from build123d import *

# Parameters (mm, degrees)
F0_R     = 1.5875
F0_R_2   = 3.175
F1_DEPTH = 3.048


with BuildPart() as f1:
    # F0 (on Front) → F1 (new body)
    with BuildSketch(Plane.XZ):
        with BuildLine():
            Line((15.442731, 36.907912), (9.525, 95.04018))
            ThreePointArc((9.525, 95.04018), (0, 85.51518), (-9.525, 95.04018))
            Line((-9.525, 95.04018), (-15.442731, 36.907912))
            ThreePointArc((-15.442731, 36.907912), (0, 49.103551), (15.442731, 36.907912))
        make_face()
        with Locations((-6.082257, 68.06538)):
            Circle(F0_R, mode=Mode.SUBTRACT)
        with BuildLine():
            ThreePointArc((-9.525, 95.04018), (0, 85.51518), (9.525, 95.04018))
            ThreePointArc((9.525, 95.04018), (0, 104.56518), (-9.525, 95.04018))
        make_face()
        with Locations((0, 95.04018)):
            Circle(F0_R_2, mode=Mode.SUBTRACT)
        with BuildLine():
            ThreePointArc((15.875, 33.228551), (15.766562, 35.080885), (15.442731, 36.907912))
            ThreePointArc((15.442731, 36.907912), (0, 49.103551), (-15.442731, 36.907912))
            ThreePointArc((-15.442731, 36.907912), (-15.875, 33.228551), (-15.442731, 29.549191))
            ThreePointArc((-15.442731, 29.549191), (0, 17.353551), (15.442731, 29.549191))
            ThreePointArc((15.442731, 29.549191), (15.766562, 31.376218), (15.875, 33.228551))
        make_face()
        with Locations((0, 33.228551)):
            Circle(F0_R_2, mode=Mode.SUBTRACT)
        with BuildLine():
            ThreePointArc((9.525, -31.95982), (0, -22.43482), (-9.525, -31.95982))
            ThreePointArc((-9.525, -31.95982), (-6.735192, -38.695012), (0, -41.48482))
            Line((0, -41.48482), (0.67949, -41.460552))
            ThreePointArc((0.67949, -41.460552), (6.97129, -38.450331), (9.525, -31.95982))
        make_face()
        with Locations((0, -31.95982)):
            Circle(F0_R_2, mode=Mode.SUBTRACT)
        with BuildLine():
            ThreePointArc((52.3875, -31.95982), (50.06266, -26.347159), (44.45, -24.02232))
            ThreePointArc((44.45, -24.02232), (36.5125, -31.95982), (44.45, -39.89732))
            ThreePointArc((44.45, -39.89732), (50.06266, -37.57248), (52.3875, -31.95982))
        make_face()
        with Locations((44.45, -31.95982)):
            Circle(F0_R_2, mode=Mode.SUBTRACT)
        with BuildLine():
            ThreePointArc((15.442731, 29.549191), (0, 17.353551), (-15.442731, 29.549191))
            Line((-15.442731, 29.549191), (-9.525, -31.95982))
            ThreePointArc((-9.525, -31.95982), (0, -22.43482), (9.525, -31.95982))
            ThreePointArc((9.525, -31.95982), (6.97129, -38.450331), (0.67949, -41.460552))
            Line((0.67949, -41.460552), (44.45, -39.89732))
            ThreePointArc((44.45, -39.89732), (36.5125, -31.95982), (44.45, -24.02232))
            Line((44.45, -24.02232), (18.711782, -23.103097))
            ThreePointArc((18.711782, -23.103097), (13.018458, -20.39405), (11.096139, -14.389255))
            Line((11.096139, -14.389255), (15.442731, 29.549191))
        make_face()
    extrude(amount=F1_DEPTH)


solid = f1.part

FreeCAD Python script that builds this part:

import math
import FreeCAD as App
import Part
import Sketcher
Q = App.Units.Quantity

doc = App.newDocument("Part")
body = doc.addObject("PartDesign::Body", "Body")

# Sketch on XZ plane
sketch1 = body.newObject("Sketcher::SketchObject", "Sketch")
sketch1.AttachmentSupport = (doc.getObject("XZ_Plane"), [""])
sketch1.MapMode = "FlatFace"
sketch1.addGeometry(Part.LineSegment(App.Vector(15.442731, 36.907912, 0), App.Vector(9.525, 95.04018, 0)), False)
sketch1.addGeometry(Part.ArcOfCircle(Part.Circle(App.Vector(0, 95.04018, 0), App.Vector(0, 0, 1), 9.525), math.radians(0), math.radians(180)), False)
sketch1.addGeometry(Part.LineSegment(App.Vector(-9.525, 95.04018, 0), App.Vector(-15.442731, 36.907912, 0)), False)
sketch1.addGeometry(Part.ArcOfCircle(Part.Circle(App.Vector(0.000011, 33.228552, 0), App.Vector(0, 0, 1), 15.875011), math.radians(166.598664), math.radians(193.401336)), False)
sketch1.addGeometry(Part.LineSegment(App.Vector(-15.442731, 29.549191, 0), App.Vector(-9.525, -31.95982, 0)), False)
sketch1.addGeometry(Part.ArcOfCircle(Part.Circle(App.Vector(0, -31.95982, 0), App.Vector(0, 0, 1), 9.525), math.radians(-179.999998), math.radians(-90.000002)), False)
sketch1.addGeometry(Part.LineSegment(App.Vector(0, -41.48482, 0), App.Vector(0.67949, -41.460552, 0)), False)
sketch1.addGeometry(Part.LineSegment(App.Vector(0.67949, -41.460552, 0), App.Vector(44.45, -39.89732, 0)), False)
sketch1.addGeometry(Part.ArcOfCircle(Part.Circle(App.Vector(44.45, -31.95982, 0), App.Vector(0, 0, 1), 7.9375), math.radians(-89.999998), math.radians(-0.000002)), False)
sketch1.addGeometry(Part.ArcOfCircle(Part.Circle(App.Vector(44.450001, -31.959819, 0), App.Vector(0, 0, 1), 7.937499), math.radians(-0.00001), math.radians(90.00001)), False)
sketch1.addGeometry(Part.LineSegment(App.Vector(44.45, -24.02232, 0), App.Vector(18.711782, -23.103097, 0)), False)
sketch1.addGeometry(Part.ArcOfCircle(Part.Circle(App.Vector(18.995082, -15.170655, 0), App.Vector(0, 0, 1), 7.937499), math.radians(174.350417), math.radians(267.9546)), False)
sketch1.addGeometry(Part.LineSegment(App.Vector(11.096139, -14.389255, 0), App.Vector(15.442731, 29.549191, 0)), False)
sketch1.addGeometry(Part.ArcOfCircle(Part.Circle(App.Vector(-0.00006, 33.228557, 0), App.Vector(0, 0, 1), 15.87506), math.radians(-13.401315), math.radians(-0.000023)), False)
sketch1.addGeometry(Part.ArcOfCircle(Part.Circle(App.Vector(-0.00006, 33.228546, 0), App.Vector(0, 0, 1), 15.87506), math.radians(0.000019), math.radians(13.401315)), False)
sketch1.addGeometry(Part.Circle(App.Vector(0, 33.228551, 0), App.Vector(0, 0, 1), 3.175), False)
sketch1.addGeometry(Part.Circle(App.Vector(-6.082257, 68.06538, 0), App.Vector(0, 0, 1), 1.5875), False)
sketch1.addGeometry(Part.Circle(App.Vector(0, 95.04018, 0), App.Vector(0, 0, 1), 3.175), False)
sketch1.addGeometry(Part.Circle(App.Vector(0, -31.95982, 0), App.Vector(0, 0, 1), 3.175), False)
sketch1.addGeometry(Part.Circle(App.Vector(44.45, -31.95982, 0), App.Vector(0, 0, 1), 3.175), False)
sketch1.addConstraint(Sketcher.Constraint("Coincident", 0, 2, 1, 1))
sketch1.addConstraint(Sketcher.Constraint("Coincident", 1, 2, 2, 1))
sketch1.addConstraint(Sketcher.Constraint("Coincident", 2, 2, 3, 1))
sketch1.addConstraint(Sketcher.Constraint("Coincident", 3, 2, 4, 1))
sketch1.addConstraint(Sketcher.Constraint("Coincident", 4, 2, 5, 1))
sketch1.addConstraint(Sketcher.Constraint("Coincident", 5, 2, 6, 1))
sketch1.addConstraint(Sketcher.Constraint("Coincident", 6, 2, 7, 1))
sketch1.addConstraint(Sketcher.Constraint("Coincident", 7, 2, 8, 1))
sketch1.addConstraint(Sketcher.Constraint("Coincident", 8, 2, 9, 1))
sketch1.addConstraint(Sketcher.Constraint("Coincident", 9, 2, 10, 1))
sketch1.addConstraint(Sketcher.Constraint("Coincident", 10, 2, 11, 2))
sketch1.addConstraint(Sketcher.Constraint("Coincident", 11, 1, 12, 1))
sketch1.addConstraint(Sketcher.Constraint("Coincident", 12, 2, 13, 1))
sketch1.addConstraint(Sketcher.Constraint("Coincident", 13, 2, 14, 1))
sketch1.addConstraint(Sketcher.Constraint("Coincident", 14, 2, 0, 1))
sketch1.addConstraint(Sketcher.Constraint("Coincident", 9, 3, 8, 3))
sketch1.addConstraint(Sketcher.Constraint("Coincident", 17, 3, 1, 3))
sketch1.addConstraint(Sketcher.Constraint("Coincident", 18, 3, 5, 3))
sketch1.addConstraint(Sketcher.Constraint("Coincident", 19, 3, 8, 3))
sketch1.addConstraint(Sketcher.Constraint("PointOnObject", 1, 3, -2))
sketch1.addConstraint(Sketcher.Constraint("PointOnObject", 5, 3, -2))
sketch1.addConstraint(Sketcher.Constraint("PointOnObject", 15, 3, -2))
sketch1.addConstraint(Sketcher.Constraint("PointOnObject", 5, 2, -2))
sketch1.addConstraint(Sketcher.Constraint("Diameter", 15, Q("0.25 in")))
sketch1.addConstraint(Sketcher.Constraint("Diameter", 17, Q("0.25 in")))
sketch1.addConstraint(Sketcher.Constraint("Diameter", 18, Q("0.25 in")))
sketch1.addConstraint(Sketcher.Constraint("Diameter", 19, Q("0.25 in")))
sketch1.addConstraint(Sketcher.Constraint("Diameter", 16, Q("0.125 in")))
sketch1.addConstraint(Sketcher.Constraint("Radius", 1, Q("0.375 in")))
sketch1.addConstraint(Sketcher.Constraint("Radius", 5, Q("0.375 in")))
sketch1.addConstraint(Sketcher.Constraint("Radius", 8, Q("0.3125 in")))
sketch1.addConstraint(Sketcher.Constraint("Radius", 11, Q("0.3125 in")))
sketch1.addConstraint(Sketcher.Constraint("DistanceY", 5, 3, 1, 3, Q("5 in")))
sketch1.addConstraint(Sketcher.Constraint("DistanceY", 8, 3, 1, 3, Q("5 in")))
sketch1.addConstraint(Sketcher.Constraint("DistanceX", -1, 1, 8, 3, Q("1.75 in")))
sketch1.addConstraint(Sketcher.Constraint("DistanceX", -1, 1, 7, 2, Q("1.75 in")))
sketch1.addConstraint(Sketcher.Constraint("DistanceX", -1, 1, 9, 2, Q("1.75 in")))
sketch1.addConstraint(Sketcher.Constraint("DistanceX", -1, 1, 13, 2, Q("0.625 in")))
sketch1.addConstraint(Sketcher.Constraint("Radius", 3, Q("15.875011 mm")))
sketch1.addConstraint(Sketcher.Constraint("Radius", 13, Q("15.87506 mm")))
sketch1.addConstraint(Sketcher.Constraint("Radius", 14, Q("15.87506 mm")))
sketch1.addConstraint(Sketcher.Constraint("DistanceY", 16, 3, 1, 3, Q("1.062 in")))
sketch1.addConstraint(Sketcher.Constraint("DistanceY", 16, 3, 0, 2, Q("1.062 in")))
sketch1.addConstraint(Sketcher.Constraint("DistanceY", 16, 3, 1, 2, Q("1.062 in")))
sketch1.addConstraint(Sketcher.Constraint("DistanceY", 5, 2, 4, 2, Q("0.375 in")))
sketch1.addConstraint(Sketcher.Constraint("DistanceY", 7, 2, 8, 2, Q("0.3125 in")))
sketch1.addConstraint(Sketcher.Constraint("Distance", 0, Q("2.3004999 in")))
sketch1.addConstraint(Sketcher.Constraint("Distance", 2, Q("2.3004999 in")))
sketch1.addConstraint(Sketcher.Constraint("DistanceY", 11, 3, 14, 3, Q("48.399201 mm")))
sketch1.addConstraint(Sketcher.Constraint("DistanceX", 10, 2, 11, 3, Q("0.2833 mm")))
sketch1.addConstraint(Sketcher.Constraint("DistanceY", 11, 3, 11, 1, Q("0.7814 mm")))
sketch1.addConstraint(Sketcher.Constraint("DistanceY", -1, 1, 1, 3, Q("95.04018 mm")))
sketch1.addConstraint(Sketcher.Constraint("DistanceY", -1, 1, 3, 3, Q("33.228552 mm")))
sketch1.addConstraint(Sketcher.Constraint("DistanceY", -1, 1, 15, 3, Q("33.228551 mm")))
sketch1.addConstraint(Sketcher.Constraint("DistanceX", 2, 2, -1, 1, Q("15.442731 mm")))
sketch1.addConstraint(Sketcher.Constraint("DistanceX", 3, 2, -1, 1, Q("15.442731 mm")))
sketch1.addConstraint(Sketcher.Constraint("DistanceX", -1, 1, 6, 2, Q("0.67949 mm")))
sketch1.addConstraint(Sketcher.Constraint("DistanceX", -1, 1, 10, 2, Q("18.711782 mm")))
sketch1.addConstraint(Sketcher.Constraint("DistanceX", -1, 1, 12, 2, Q("15.442731 mm")))
sketch1.addConstraint(Sketcher.Constraint("DistanceY", -1, 1, 12, 2, Q("29.549191 mm")))
sketch1.addConstraint(Sketcher.Constraint("DistanceY", -1, 1, 13, 2, Q("33.228551 mm")))
sketch1.addConstraint(Sketcher.Constraint("DistanceX", -1, 1, 14, 2, Q("15.442731 mm")))
sketch1.addConstraint(Sketcher.Constraint("DistanceY", 6, 2, 18, 3, Q("9.500732 mm")))
sketch1.addConstraint(Sketcher.Constraint("DistanceX", 16, 3, -1, 1, Q("6.082257 mm")))
pad1 = body.newObject("PartDesign::Pad", "Pad")
pad1.Profile = sketch1
pad1.Length = Q("0.12 in")

doc.recompute()
